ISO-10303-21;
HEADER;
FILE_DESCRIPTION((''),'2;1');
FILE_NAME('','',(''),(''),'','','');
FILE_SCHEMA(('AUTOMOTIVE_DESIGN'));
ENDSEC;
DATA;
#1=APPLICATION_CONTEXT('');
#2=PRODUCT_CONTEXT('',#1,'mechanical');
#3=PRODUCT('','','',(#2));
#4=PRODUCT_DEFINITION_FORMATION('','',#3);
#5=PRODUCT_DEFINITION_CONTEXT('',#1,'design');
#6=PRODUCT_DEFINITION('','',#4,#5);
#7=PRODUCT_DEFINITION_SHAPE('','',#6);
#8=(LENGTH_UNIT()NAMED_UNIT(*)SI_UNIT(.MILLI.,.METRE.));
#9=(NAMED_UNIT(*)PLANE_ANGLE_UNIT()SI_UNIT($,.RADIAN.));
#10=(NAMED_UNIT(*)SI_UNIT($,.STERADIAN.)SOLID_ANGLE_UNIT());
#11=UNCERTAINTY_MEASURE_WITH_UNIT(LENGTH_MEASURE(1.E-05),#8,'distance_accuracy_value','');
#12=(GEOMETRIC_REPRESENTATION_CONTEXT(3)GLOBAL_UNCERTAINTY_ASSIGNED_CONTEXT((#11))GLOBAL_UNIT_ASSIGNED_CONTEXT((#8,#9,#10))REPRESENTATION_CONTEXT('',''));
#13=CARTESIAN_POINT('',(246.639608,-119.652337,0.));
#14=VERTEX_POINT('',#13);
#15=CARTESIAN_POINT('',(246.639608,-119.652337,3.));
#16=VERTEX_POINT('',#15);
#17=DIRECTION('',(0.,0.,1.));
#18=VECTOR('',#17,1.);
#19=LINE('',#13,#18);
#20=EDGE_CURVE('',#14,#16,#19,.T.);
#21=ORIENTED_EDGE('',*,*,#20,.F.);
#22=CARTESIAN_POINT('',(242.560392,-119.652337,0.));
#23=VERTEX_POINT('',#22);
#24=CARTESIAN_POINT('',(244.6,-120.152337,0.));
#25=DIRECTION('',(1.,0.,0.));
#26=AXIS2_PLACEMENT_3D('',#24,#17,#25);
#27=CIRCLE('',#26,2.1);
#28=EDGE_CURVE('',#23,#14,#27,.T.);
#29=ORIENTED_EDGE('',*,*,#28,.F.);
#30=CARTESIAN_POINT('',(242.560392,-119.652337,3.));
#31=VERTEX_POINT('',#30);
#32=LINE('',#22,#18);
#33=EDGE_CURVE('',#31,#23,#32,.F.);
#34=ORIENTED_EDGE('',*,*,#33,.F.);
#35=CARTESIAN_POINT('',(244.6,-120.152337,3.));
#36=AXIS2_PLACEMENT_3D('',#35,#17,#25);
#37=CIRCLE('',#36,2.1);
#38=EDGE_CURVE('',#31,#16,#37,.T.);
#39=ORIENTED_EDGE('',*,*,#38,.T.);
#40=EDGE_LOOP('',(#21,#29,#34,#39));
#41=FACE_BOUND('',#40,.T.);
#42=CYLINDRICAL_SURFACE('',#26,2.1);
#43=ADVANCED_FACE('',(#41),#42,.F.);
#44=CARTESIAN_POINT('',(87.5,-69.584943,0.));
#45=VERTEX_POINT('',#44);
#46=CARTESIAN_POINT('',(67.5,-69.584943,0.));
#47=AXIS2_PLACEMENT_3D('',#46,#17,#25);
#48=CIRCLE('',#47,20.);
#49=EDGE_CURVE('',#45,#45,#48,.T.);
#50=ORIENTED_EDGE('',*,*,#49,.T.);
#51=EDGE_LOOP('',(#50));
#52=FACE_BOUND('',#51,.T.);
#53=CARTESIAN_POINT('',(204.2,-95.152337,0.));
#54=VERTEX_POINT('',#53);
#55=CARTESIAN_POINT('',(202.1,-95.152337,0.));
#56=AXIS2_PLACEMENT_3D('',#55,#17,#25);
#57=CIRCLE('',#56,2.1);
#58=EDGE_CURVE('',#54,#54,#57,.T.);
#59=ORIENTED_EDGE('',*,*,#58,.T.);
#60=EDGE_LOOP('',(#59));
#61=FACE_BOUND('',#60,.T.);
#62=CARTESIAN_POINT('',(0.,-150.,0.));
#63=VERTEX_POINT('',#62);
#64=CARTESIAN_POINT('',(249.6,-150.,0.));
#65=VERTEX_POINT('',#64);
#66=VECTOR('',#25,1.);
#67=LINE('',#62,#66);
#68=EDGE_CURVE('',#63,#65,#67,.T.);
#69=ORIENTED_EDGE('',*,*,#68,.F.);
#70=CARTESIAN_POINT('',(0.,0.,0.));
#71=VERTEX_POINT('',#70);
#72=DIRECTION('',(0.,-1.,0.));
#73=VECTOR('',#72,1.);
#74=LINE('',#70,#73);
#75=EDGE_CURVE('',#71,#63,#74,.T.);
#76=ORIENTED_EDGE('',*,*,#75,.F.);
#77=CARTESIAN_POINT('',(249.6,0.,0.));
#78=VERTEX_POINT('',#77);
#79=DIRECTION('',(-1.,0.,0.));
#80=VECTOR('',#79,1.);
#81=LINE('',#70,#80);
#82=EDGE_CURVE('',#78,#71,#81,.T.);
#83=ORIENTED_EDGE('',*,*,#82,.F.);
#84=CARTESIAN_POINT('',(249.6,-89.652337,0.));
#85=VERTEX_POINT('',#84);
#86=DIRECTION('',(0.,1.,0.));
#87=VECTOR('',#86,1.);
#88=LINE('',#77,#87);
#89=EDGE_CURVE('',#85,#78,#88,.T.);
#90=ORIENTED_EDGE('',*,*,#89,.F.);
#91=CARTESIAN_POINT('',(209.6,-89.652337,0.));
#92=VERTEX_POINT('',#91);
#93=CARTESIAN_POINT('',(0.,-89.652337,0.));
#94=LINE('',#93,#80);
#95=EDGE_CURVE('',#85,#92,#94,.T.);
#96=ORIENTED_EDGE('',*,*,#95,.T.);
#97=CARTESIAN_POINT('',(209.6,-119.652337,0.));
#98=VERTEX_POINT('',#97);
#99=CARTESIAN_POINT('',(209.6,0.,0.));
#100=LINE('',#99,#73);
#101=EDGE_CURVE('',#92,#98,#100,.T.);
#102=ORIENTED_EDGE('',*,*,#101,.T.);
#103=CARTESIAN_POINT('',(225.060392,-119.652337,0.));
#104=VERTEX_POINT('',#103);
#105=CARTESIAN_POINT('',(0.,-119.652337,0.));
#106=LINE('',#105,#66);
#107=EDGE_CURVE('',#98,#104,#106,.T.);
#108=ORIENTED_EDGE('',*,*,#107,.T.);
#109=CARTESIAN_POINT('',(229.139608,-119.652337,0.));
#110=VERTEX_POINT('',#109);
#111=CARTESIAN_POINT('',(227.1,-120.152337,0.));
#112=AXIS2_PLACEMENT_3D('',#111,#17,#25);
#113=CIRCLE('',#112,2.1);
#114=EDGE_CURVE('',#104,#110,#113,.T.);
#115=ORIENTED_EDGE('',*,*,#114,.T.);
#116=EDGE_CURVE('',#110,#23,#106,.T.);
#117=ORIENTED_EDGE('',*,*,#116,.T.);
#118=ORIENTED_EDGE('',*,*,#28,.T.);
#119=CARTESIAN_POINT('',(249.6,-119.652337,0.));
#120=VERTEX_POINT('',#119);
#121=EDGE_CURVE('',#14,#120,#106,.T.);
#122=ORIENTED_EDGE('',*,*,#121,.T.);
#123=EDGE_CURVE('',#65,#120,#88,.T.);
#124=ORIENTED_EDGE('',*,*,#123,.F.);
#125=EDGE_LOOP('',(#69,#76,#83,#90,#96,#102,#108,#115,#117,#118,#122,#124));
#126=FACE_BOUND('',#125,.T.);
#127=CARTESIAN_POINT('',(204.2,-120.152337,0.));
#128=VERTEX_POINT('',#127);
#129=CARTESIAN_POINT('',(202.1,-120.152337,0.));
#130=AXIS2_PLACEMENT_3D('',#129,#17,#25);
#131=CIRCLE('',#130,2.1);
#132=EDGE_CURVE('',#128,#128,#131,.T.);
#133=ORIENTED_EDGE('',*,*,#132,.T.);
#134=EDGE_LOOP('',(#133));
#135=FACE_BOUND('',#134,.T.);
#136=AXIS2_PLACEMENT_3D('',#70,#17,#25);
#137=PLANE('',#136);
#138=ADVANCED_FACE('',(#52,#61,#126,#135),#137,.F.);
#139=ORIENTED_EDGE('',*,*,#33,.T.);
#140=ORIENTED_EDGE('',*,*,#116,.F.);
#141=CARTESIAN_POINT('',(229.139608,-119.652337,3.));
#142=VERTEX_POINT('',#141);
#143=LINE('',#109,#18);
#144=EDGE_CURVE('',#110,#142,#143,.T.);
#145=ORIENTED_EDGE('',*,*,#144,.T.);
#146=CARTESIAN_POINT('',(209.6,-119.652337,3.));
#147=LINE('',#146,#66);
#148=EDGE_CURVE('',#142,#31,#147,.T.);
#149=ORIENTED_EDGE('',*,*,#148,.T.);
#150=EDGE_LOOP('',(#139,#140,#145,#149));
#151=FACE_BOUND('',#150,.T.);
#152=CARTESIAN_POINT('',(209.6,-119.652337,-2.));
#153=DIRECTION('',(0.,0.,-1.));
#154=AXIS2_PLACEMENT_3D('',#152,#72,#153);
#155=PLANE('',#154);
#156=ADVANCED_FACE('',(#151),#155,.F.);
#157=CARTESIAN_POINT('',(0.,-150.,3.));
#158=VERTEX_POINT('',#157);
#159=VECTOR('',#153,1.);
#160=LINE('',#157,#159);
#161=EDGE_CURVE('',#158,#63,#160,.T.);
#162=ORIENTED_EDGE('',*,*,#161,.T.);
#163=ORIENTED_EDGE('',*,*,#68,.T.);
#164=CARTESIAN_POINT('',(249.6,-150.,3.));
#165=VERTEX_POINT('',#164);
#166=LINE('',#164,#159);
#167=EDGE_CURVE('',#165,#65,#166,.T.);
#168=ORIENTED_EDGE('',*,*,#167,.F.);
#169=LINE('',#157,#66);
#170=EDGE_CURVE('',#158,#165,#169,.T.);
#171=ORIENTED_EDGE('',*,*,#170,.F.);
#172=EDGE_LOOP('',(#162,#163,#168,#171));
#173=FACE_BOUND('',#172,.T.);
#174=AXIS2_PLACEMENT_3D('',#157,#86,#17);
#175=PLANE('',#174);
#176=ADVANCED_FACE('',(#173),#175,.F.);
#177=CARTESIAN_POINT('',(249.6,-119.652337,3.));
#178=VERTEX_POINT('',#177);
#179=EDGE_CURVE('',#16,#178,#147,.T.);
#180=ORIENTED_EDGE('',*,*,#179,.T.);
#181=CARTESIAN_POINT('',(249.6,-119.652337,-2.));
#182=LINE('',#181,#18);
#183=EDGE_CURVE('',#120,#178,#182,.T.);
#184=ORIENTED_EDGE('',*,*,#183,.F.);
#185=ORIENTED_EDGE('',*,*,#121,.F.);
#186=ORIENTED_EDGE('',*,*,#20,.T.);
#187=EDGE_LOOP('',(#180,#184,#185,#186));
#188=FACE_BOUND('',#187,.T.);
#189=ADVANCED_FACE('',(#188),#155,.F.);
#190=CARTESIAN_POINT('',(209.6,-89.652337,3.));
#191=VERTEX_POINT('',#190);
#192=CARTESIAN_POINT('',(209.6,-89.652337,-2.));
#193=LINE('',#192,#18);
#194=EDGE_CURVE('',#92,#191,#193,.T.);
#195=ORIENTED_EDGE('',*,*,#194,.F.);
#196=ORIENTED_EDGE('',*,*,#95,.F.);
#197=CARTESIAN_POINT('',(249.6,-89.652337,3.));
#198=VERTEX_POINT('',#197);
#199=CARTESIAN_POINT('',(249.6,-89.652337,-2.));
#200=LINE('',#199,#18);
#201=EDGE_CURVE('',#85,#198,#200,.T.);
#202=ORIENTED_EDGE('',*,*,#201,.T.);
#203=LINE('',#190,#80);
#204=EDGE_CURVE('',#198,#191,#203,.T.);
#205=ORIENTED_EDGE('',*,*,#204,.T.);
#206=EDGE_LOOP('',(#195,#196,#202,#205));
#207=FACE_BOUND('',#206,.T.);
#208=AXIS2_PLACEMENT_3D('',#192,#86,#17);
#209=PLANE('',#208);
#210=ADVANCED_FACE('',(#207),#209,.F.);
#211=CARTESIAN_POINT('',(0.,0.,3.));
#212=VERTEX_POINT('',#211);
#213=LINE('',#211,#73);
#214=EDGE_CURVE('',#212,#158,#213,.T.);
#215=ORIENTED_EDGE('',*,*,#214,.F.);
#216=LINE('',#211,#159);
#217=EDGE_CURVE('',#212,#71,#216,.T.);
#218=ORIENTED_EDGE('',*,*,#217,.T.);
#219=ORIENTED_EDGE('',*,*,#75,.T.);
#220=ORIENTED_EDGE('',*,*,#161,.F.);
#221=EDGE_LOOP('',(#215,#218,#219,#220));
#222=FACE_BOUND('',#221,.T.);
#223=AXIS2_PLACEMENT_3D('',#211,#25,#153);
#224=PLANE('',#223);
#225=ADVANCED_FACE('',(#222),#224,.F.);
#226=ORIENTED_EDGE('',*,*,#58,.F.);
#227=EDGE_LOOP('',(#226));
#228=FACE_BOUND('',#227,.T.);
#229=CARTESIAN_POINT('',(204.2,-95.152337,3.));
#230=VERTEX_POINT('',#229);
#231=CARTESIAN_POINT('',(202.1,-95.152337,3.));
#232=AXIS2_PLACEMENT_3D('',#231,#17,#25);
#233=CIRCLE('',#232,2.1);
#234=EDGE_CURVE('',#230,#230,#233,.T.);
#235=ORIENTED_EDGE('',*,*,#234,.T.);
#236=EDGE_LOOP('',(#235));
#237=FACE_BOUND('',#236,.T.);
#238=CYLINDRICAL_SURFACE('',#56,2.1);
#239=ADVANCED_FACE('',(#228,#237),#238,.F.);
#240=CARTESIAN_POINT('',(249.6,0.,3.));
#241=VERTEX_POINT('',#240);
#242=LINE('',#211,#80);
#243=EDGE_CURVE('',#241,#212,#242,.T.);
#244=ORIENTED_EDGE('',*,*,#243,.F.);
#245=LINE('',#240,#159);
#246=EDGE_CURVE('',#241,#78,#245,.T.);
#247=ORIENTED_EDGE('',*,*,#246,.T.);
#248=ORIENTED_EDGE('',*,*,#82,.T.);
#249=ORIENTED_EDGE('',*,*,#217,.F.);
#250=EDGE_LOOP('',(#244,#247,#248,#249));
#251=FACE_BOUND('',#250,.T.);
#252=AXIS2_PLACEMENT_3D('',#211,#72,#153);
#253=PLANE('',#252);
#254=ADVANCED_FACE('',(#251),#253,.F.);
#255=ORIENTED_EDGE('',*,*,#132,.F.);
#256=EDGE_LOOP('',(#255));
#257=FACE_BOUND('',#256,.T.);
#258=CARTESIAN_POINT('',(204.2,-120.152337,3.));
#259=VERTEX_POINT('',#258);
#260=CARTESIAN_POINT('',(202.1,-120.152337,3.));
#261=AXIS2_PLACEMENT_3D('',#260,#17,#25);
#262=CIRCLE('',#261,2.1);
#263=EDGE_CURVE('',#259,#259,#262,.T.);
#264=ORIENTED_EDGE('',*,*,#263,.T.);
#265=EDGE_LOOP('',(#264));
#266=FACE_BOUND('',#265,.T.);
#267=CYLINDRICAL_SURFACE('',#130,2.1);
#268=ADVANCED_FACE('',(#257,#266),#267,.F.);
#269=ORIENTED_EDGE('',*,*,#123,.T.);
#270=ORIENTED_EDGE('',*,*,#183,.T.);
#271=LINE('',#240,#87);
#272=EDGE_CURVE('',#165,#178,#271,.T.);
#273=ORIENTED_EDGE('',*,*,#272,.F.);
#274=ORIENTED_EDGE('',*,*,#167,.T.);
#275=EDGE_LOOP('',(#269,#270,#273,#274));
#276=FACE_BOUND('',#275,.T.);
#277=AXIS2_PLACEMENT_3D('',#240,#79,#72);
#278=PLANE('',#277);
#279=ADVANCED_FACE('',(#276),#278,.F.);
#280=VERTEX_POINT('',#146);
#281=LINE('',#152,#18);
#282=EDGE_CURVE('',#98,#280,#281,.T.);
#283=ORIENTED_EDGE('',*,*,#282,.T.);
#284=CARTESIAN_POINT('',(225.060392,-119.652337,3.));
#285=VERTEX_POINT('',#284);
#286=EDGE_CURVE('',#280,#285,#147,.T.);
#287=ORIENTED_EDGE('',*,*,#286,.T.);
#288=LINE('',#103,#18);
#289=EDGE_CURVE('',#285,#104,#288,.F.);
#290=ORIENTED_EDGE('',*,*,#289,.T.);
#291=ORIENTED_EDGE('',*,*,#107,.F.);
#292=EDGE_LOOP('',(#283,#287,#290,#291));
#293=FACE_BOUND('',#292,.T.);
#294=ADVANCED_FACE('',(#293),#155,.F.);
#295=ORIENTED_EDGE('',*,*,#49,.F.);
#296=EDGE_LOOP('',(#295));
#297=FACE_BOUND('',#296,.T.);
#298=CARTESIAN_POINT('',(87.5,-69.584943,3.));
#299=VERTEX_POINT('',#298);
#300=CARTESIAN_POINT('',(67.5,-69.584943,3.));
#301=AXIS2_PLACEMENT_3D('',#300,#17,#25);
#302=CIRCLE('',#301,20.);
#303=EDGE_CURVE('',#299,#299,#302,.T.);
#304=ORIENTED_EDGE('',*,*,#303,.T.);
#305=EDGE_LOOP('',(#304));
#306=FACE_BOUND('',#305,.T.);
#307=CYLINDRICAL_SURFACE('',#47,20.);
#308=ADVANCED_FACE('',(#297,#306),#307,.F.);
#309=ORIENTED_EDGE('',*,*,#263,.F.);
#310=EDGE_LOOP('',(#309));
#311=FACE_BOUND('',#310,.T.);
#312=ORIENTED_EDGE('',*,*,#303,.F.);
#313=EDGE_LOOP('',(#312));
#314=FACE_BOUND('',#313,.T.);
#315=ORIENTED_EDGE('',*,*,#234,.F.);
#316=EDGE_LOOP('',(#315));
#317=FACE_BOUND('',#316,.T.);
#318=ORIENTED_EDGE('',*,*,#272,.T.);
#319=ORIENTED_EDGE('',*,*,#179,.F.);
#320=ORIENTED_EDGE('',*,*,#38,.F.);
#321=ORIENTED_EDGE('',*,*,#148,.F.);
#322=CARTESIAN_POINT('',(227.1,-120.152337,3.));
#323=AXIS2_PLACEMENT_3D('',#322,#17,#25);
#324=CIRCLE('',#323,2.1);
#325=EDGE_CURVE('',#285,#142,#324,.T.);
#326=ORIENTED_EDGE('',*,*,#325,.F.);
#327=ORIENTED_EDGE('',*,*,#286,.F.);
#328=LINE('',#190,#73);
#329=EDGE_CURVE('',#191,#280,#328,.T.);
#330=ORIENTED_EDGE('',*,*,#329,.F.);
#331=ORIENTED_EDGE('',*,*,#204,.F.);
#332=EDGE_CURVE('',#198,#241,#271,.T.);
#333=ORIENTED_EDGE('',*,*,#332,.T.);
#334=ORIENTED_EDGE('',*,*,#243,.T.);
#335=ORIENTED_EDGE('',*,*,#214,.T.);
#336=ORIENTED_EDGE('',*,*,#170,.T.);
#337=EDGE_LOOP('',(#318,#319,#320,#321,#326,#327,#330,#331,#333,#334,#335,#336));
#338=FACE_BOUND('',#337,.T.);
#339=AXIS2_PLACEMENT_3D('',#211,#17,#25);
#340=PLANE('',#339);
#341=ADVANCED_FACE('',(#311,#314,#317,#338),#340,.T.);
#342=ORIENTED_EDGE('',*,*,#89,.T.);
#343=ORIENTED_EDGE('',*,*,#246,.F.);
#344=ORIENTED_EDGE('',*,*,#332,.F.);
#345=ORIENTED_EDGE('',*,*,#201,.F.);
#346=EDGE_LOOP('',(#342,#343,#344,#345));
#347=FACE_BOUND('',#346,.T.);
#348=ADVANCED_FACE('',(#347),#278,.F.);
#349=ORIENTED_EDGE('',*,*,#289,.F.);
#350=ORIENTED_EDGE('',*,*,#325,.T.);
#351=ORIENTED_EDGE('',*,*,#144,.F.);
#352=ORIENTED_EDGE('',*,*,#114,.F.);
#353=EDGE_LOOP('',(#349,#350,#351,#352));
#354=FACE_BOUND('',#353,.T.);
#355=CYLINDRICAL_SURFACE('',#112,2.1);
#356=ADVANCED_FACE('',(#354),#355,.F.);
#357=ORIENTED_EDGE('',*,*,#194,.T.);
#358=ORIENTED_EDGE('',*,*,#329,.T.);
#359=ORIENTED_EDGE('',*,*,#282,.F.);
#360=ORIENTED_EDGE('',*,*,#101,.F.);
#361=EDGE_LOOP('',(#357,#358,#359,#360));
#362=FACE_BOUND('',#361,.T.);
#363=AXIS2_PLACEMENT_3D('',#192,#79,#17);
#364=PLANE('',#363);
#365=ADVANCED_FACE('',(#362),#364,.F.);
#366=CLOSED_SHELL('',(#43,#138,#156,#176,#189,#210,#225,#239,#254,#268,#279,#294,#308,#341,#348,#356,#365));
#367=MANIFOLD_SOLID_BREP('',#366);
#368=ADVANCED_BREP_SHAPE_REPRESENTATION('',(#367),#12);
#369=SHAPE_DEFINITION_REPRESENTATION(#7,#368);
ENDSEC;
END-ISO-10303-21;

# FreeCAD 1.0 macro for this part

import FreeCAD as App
import Part
import Sketcher
from FreeCAD import Vector
Q = App.Units.Quantity


def add_polygon(sketch, points):
    """Adds a closed chain of lines whose ends are joined by coincident constraints."""
    first, n = sketch.GeometryCount, len(points)
    for a, b in zip(points, points[1:] + points[:1]):
        sketch.addGeometry(Part.LineSegment(App.Vector(*a, 0), App.Vector(*b, 0)), False)
    for i in range(n):
        sketch.addConstraint(Sketcher.Constraint("Coincident", first + i, 2, first + (i + 1) % n, 1))

doc = App.newDocument("Part")
body = doc.addObject("PartDesign::Body", "Body")

sketch1 = body.newObject("Sketcher::SketchObject", "Sketch")
sketch1.AttachmentSupport = (doc.getObject("XY_Plane"), [""])
sketch1.MapMode = "FlatFace"
add_polygon(sketch1, [(0, 0), (0, -150), (250, -150), (250, 0)])
sketch1.addConstraint([
    Sketcher.Constraint("Vertical", 0),
    Sketcher.Constraint("Horizontal", 1),
    Sketcher.Constraint("Vertical", 2),
    Sketcher.Constraint("Horizontal", 3),
    Sketcher.Constraint("Coincident", 3, 2, -1, 1),
    Sketcher.Constraint("DistanceY", 0, 2, 0, 1, Q("150 mm")),
    Sketcher.Constraint("DistanceX", 1, 1, 1, 2, Q("249.6 mm")),
])
pad1 = body.newObject("PartDesign::Pad", "Pad")
pad1.Profile = sketch1
pad1.Length = 3

sketch2 = body.newObject("Sketcher::SketchObject", "Sketch001")
sketch2.AttachmentSupport = (doc.getObject("XY_Plane"), [""])
sketch2.MapMode = "FlatFace"
sketch2.AttachmentOffset = App.Placement(Vector(0, 0, 3), App.Rotation())
sketch2.addGeometry(Part.Circle(Vector(68, -70, 0), Vector(0, 0, 1), 20), False)
sketch2.addConstraint([
    Sketcher.Constraint("Diameter", 0, Q("40 mm")),
    Sketcher.Constraint("DistanceX", -1, 1, 0, 3, Q("67.5 mm")),
    Sketcher.Constraint("DistanceY", 0, 3, -1, 1, Q("69.584943 mm")),
])
pocket1 = body.newObject("PartDesign::Pocket", "Pocket")
pocket1.Profile = sketch2
pocket1.Type = "ThroughAll"

sketch3 = body.newObject("Sketcher::SketchObject", "Sketch002")
sketch3.AttachmentSupport = (doc.getObject("XY_Plane"), [""])
sketch3.MapMode = "FlatFace"
sketch3.AttachmentOffset = App.Placement(Vector(0, 0, 3), App.Rotation())
add_polygon(sketch3, [(210, -90), (210, -120), (250, -120), (250, -90)])
sketch3.addConstraint([
    Sketcher.Constraint("Vertical", 0),
    Sketcher.Constraint("Horizontal", 1),
    Sketcher.Constraint("Vertical", 2),
    Sketcher.Constraint("Horizontal", 3),
    Sketcher.Constraint("DistanceX", 1, 1, 1, 2, Q("40 mm")),
    Sketcher.Constraint("DistanceY", 0, 2, 0, 1, Q("30 mm")),
    Sketcher.Constraint("DistanceX", -1, 1, 0, 2, Q("209.6 mm")),
    Sketcher.Constraint("DistanceY", 0, 2, -1, 1, Q("119.652337 mm")),
])
pocket2 = body.newObject("PartDesign::Pocket", "Pocket001")
pocket2.Profile = sketch3
pocket2.Length = 5

sketch4 = body.newObject("Sketcher::SketchObject", "Sketch003")
sketch4.AttachmentSupport = (doc.getObject("XY_Plane"), [""])
sketch4.MapMode = "FlatFace"
sketch4.AttachmentOffset = App.Placement(Vector(0, 0, 3), App.Rotation())
sketch4.addGeometry([
    Part.Circle(Vector(244.6, -120.2, 0), Vector(0, 0, 1), 2.1),
    Part.Circle(Vector(227.1, -120.2, 0), Vector(0, 0, 1), 2.1),
    Part.Circle(Vector(239.6, -107.7, 0), Vector(0, 0, 1), 4),
    Part.Circle(Vector(244.6, -95.2, 0), Vector(0, 0, 1), 2.1),
    Part.Circle(Vector(227.1, -95.2, 0), Vector(0, 0, 1), 2.1),
    Part.Circle(Vector(202.1, -120.2, 0), Vector(0, 0, 1), 2.1),
    Part.Circle(Vector(202.1, -95.2, 0), Vector(0, 0, 1), 2.1),
    Part.Circle(Vector(214.6, -107.7, 0), Vector(0, 0, 1), 4),
], False)
sketch4.addConstraint([
    Sketcher.Constraint("Equal", 0, 1),
    Sketcher.Constraint("Equal", 1, 3),
    Sketcher.Constraint("Equal", 3, 4),
    Sketcher.Constraint("Equal", 4, 5),
    Sketcher.Constraint("Equal", 5, 6),
    Sketcher.Constraint("Equal", 2, 7),
    Sketcher.Constraint("Horizontal", 0, 3, 1, 3),
    Sketcher.Constraint("Horizontal", 3, 3, 4, 3),
    Sketcher.Constraint("Horizontal", 1, 3, 5, 3),
    Sketcher.Constraint("Horizontal", 4, 3, 6, 3),
    Sketcher.Constraint("Horizontal", 2, 3, 7, 3),
    Sketcher.Constraint("Vertical", 0, 3, 3, 3),
    Sketcher.Constraint("Vertical", 1, 3, 4, 3),
    Sketcher.Constraint("Vertical", 5, 3, 6, 3),
    Sketcher.Constraint("Diameter", 2, Q("8 mm")),
    Sketcher.Constraint("Diameter", 0, Q("4.2 mm")),
    Sketcher.Constraint("DistanceX", 2, 3, 0, 3, Q("5 mm")),
    Sketcher.Constraint("DistanceY", 0, 3, 3, 3, Q("25 mm")),
    Sketcher.Constraint("DistanceX", 5, 3, 1, 3, Q("25 mm")),
    Sketcher.Constraint("DistanceX", 7, 3, 2, 3, Q("25 mm")),
    Sketcher.Constraint("DistanceX", -1, 1, 0, 3, Q("244.6 mm")),
    Sketcher.Constraint("DistanceX", -1, 1, 1, 3, Q("227.1 mm")),
    Sketcher.Constraint("DistanceY", 0, 3, 2, 3, Q("12.5 mm")),
    Sketcher.Constraint("DistanceY", 0, 3, -1, 1, Q("120.152337 mm")),
])
pocket3 = body.newObject("PartDesign::Pocket", "Pocket002")
pocket3.Profile = sketch4
pocket3.Type = "ThroughAll"

doc.recompute()
